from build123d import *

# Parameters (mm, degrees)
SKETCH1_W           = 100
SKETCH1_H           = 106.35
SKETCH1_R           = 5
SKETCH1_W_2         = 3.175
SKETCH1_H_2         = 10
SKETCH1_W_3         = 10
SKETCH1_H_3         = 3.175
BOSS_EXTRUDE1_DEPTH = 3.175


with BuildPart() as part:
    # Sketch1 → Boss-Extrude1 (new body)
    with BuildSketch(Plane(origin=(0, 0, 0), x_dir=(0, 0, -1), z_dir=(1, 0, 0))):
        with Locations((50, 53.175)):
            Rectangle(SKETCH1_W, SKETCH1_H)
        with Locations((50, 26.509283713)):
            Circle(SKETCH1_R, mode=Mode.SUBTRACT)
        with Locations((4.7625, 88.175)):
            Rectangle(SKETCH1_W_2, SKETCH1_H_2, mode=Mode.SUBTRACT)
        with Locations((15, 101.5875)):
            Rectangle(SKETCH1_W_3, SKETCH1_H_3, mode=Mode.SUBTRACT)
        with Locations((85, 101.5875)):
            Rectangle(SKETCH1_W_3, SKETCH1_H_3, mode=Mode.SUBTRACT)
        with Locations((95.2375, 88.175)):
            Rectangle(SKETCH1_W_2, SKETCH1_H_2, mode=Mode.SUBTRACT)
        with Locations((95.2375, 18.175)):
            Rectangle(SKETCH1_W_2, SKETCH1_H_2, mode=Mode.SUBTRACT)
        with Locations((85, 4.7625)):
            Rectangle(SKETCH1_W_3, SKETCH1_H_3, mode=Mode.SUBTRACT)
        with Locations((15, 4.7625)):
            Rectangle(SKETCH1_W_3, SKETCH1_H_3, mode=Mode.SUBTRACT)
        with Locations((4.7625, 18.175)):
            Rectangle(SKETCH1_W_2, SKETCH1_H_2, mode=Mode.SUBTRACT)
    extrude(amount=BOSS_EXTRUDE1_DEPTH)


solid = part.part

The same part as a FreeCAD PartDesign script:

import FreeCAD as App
import Part
import Sketcher

V = App.Vector
Q = App.Units.Quantity


def add_polygon(sketch, points):
    """Adds a closed chain of lines whose ends are joined by coincident constraints."""
    first, n = sketch.GeometryCount, len(points)
    for a, b in zip(points, points[1:] + points[:1]):
        sketch.addGeometry(Part.LineSegment(App.Vector(*a, 0), App.Vector(*b, 0)), False)
    for i in range(n):
        sketch.addConstraint(Sketcher.Constraint("Coincident", first + i, 2, first + (i + 1) % n, 1))

doc = App.newDocument("Part")
body = doc.addObject("PartDesign::Body", "Body")

sketch1 = body.newObject("Sketcher::SketchObject", "Sketch")
sketch1.AttachmentSupport = (doc.getObject("YZ_Plane"), [""])
sketch1.MapMode = "FlatFace"
add_polygon(sketch1, [(106.3, 0), (0, 0), (0, -100), (106.3, -100)])
add_polygon(sketch1, [(3.2, -20), (3.2, -10), (6.3, -10), (6.3, -20)])
add_polygon(sketch1, [(13.2, -6.3), (13.2, -3.2), (23.2, -3.2), (23.2, -6.3)])
sketch1.addGeometry(Part.Circle(V(26.5, -50, 0), V(0, 0, 1), 5), False)
add_polygon(sketch1, [(3.2, -90), (3.2, -80), (6.3, -80), (6.3, -90)])
add_polygon(sketch1, [(13.2, -96.8), (13.2, -93.7), (23.2, -93.7), (23.2, -96.8)])
add_polygon(sketch1, [(83.2, -6.3), (83.2, -3.2), (93.2, -3.2), (93.2, -6.3)])
add_polygon(sketch1, [(100, -20), (100, -10), (103.2, -10), (103.2, -20)])
add_polygon(sketch1, [(83.2, -96.8), (83.2, -93.7), (93.2, -93.7), (93.2, -96.8)])
add_polygon(sketch1, [(100, -90), (100, -80), (103.2, -80), (103.2, -90)])
sketch1.addConstraint(Sketcher.Constraint("Horizontal", 0))
sketch1.addConstraint(Sketcher.Constraint("Vertical", 1))
sketch1.addConstraint(Sketcher.Constraint("Horizontal", 2))
sketch1.addConstraint(Sketcher.Constraint("Vertical", 3))
sketch1.addConstraint(Sketcher.Constraint("Vertical", 4))
sketch1.addConstraint(Sketcher.Constraint("Horizontal", 5))
sketch1.addConstraint(Sketcher.Constraint("Vertical", 6))
sketch1.addConstraint(Sketcher.Constraint("Horizontal", 7))
sketch1.addConstraint(Sketcher.Constraint("Vertical", 8))
sketch1.addConstraint(Sketcher.Constraint("Horizontal", 9))
sketch1.addConstraint(Sketcher.Constraint("Vertical", 10))
sketch1.addConstraint(Sketcher.Constraint("Horizontal", 11))
sketch1.addConstraint(Sketcher.Constraint("Vertical", 13))
sketch1.addConstraint(Sketcher.Constraint("Horizontal", 14))
sketch1.addConstraint(Sketcher.Constraint("Vertical", 15))
sketch1.addConstraint(Sketcher.Constraint("Horizontal", 16))
sketch1.addConstraint(Sketcher.Constraint("Vertical", 17))
sketch1.addConstraint(Sketcher.Constraint("Horizontal", 18))
sketch1.addConstraint(Sketcher.Constraint("Vertical", 19))
sketch1.addConstraint(Sketcher.Constraint("Horizontal", 20))
sketch1.addConstraint(Sketcher.Constraint("Vertical", 21))
sketch1.addConstraint(Sketcher.Constraint("Horizontal", 22))
sketch1.addConstraint(Sketcher.Constraint("Vertical", 23))
sketch1.addConstraint(Sketcher.Constraint("Horizontal", 24))
sketch1.addConstraint(Sketcher.Constraint("Vertical", 25))
sketch1.addConstraint(Sketcher.Constraint("Horizontal", 26))
sketch1.addConstraint(Sketcher.Constraint("Vertical", 27))
sketch1.addConstraint(Sketcher.Constraint("Horizontal", 28))
sketch1.addConstraint(Sketcher.Constraint("Vertical", 29))
sketch1.addConstraint(Sketcher.Constraint("Horizontal", 30))
sketch1.addConstraint(Sketcher.Constraint("Vertical", 31))
sketch1.addConstraint(Sketcher.Constraint("Horizontal", 32))
sketch1.addConstraint(Sketcher.Constraint("Vertical", 33))
sketch1.addConstraint(Sketcher.Constraint("Horizontal", 34))
sketch1.addConstraint(Sketcher.Constraint("Vertical", 35))
sketch1.addConstraint(Sketcher.Constraint("Horizontal", 36))
sketch1.addConstraint(Sketcher.Constraint("Coincident", 0, 2, -1, 1))
sketch1.addConstraint(Sketcher.Constraint("Horizontal", 9, 2, 21, 2))
sketch1.addConstraint(Sketcher.Constraint("Horizontal", 11, 2, 23, 2))
sketch1.addConstraint(Sketcher.Constraint("Horizontal", 5, 2, 25, 2))
sketch1.addConstraint(Sketcher.Constraint("Horizontal", 7, 2, 27, 2))
sketch1.addConstraint(Sketcher.Constraint("Horizontal", 18, 2, 29, 2))
sketch1.addConstraint(Sketcher.Constraint("Horizontal", 20, 2, 31, 2))
sketch1.addConstraint(Sketcher.Constraint("Horizontal", 14, 2, 33, 2))
sketch1.addConstraint(Sketcher.Constraint("Horizontal", 16, 2, 35, 2))
sketch1.addConstraint(Sketcher.Constraint("Vertical", 7, 2, 13, 2))
sketch1.addConstraint(Sketcher.Constraint("Vertical", 6, 2, 14, 2))
sketch1.addConstraint(Sketcher.Constraint("Vertical", 11, 2, 17, 2))
sketch1.addConstraint(Sketcher.Constraint("Vertical", 10, 2, 18, 2))
sketch1.addConstraint(Sketcher.Constraint("Vertical", 24, 2, 29, 2))
sketch1.addConstraint(Sketcher.Constraint("Vertical", 23, 2, 30, 2))
sketch1.addConstraint(Sketcher.Constraint("Vertical", 28, 2, 33, 2))
sketch1.addConstraint(Sketcher.Constraint("Vertical", 27, 2, 34, 2))
sketch1.addConstraint(Sketcher.Constraint("Equal", 20, 22))
sketch1.addConstraint(Sketcher.Constraint("Equal", 16, 26))
sketch1.addConstraint(Sketcher.Constraint("Equal", 32, 4))
sketch1.addConstraint(Sketcher.Constraint("Equal", 36, 8))
sketch1.addConstraint(Sketcher.Constraint("Equal", 6, 13))
sketch1.addConstraint(Sketcher.Constraint("Equal", 10, 17))
sketch1.addConstraint(Sketcher.Constraint("Diameter", 12, Q("10 mm")))
sketch1.addConstraint(Sketcher.Constraint("DistanceX", 9, 1, 9, 2, Q("10 mm")))
sketch1.addConstraint(Sketcher.Constraint("DistanceY", 1, 2, 1, 1, Q("100 mm")))
sketch1.addConstraint(Sketcher.Constraint("DistanceY", 12, 3, -1, 1, Q("50 mm")))
sketch1.addConstraint(Sketcher.Constraint("DistanceY", 4, 2, -1, 1, Q("10 mm")))
sketch1.addConstraint(Sketcher.Constraint("DistanceY", 13, 2, -1, 1, Q("80 mm")))
sketch1.addConstraint(Sketcher.Constraint("DistanceX", -1, 1, 25, 2, Q("100 mm")))
sketch1.addConstraint(Sketcher.Constraint("DistanceX", 5, 2, 3, 2, Q("100 mm")))
sketch1.addConstraint(Sketcher.Constraint("DistanceX", 4, 2, 8, 2, Q("10 mm")))
sketch1.addConstraint(Sketcher.Constraint("DistanceX", 9, 2, 21, 2, Q("60 mm")))
sketch1.addConstraint(Sketcher.Constraint("DistanceX", 23, 2, 26, 2, Q("10 mm")))
sketch1.addConstraint(Sketcher.Constraint("DistanceX", 0, 2, 0, 1, Q("106.35 mm")))
sketch1.addConstraint(Sketcher.Constraint("DistanceY", 10, 2, -1, 1, Q("6.35 mm")))
sketch1.addConstraint(Sketcher.Constraint("DistanceY", 17, 2, -1, 1, Q("93.65 mm")))
sketch1.addConstraint(Sketcher.Constraint("DistanceX", -1, 1, 12, 3, Q("26.509284 mm")))
pad1 = body.newObject("PartDesign::Pad", "Pad")
pad1.Profile = sketch1
pad1.Length = 3.175

doc.recompute()
